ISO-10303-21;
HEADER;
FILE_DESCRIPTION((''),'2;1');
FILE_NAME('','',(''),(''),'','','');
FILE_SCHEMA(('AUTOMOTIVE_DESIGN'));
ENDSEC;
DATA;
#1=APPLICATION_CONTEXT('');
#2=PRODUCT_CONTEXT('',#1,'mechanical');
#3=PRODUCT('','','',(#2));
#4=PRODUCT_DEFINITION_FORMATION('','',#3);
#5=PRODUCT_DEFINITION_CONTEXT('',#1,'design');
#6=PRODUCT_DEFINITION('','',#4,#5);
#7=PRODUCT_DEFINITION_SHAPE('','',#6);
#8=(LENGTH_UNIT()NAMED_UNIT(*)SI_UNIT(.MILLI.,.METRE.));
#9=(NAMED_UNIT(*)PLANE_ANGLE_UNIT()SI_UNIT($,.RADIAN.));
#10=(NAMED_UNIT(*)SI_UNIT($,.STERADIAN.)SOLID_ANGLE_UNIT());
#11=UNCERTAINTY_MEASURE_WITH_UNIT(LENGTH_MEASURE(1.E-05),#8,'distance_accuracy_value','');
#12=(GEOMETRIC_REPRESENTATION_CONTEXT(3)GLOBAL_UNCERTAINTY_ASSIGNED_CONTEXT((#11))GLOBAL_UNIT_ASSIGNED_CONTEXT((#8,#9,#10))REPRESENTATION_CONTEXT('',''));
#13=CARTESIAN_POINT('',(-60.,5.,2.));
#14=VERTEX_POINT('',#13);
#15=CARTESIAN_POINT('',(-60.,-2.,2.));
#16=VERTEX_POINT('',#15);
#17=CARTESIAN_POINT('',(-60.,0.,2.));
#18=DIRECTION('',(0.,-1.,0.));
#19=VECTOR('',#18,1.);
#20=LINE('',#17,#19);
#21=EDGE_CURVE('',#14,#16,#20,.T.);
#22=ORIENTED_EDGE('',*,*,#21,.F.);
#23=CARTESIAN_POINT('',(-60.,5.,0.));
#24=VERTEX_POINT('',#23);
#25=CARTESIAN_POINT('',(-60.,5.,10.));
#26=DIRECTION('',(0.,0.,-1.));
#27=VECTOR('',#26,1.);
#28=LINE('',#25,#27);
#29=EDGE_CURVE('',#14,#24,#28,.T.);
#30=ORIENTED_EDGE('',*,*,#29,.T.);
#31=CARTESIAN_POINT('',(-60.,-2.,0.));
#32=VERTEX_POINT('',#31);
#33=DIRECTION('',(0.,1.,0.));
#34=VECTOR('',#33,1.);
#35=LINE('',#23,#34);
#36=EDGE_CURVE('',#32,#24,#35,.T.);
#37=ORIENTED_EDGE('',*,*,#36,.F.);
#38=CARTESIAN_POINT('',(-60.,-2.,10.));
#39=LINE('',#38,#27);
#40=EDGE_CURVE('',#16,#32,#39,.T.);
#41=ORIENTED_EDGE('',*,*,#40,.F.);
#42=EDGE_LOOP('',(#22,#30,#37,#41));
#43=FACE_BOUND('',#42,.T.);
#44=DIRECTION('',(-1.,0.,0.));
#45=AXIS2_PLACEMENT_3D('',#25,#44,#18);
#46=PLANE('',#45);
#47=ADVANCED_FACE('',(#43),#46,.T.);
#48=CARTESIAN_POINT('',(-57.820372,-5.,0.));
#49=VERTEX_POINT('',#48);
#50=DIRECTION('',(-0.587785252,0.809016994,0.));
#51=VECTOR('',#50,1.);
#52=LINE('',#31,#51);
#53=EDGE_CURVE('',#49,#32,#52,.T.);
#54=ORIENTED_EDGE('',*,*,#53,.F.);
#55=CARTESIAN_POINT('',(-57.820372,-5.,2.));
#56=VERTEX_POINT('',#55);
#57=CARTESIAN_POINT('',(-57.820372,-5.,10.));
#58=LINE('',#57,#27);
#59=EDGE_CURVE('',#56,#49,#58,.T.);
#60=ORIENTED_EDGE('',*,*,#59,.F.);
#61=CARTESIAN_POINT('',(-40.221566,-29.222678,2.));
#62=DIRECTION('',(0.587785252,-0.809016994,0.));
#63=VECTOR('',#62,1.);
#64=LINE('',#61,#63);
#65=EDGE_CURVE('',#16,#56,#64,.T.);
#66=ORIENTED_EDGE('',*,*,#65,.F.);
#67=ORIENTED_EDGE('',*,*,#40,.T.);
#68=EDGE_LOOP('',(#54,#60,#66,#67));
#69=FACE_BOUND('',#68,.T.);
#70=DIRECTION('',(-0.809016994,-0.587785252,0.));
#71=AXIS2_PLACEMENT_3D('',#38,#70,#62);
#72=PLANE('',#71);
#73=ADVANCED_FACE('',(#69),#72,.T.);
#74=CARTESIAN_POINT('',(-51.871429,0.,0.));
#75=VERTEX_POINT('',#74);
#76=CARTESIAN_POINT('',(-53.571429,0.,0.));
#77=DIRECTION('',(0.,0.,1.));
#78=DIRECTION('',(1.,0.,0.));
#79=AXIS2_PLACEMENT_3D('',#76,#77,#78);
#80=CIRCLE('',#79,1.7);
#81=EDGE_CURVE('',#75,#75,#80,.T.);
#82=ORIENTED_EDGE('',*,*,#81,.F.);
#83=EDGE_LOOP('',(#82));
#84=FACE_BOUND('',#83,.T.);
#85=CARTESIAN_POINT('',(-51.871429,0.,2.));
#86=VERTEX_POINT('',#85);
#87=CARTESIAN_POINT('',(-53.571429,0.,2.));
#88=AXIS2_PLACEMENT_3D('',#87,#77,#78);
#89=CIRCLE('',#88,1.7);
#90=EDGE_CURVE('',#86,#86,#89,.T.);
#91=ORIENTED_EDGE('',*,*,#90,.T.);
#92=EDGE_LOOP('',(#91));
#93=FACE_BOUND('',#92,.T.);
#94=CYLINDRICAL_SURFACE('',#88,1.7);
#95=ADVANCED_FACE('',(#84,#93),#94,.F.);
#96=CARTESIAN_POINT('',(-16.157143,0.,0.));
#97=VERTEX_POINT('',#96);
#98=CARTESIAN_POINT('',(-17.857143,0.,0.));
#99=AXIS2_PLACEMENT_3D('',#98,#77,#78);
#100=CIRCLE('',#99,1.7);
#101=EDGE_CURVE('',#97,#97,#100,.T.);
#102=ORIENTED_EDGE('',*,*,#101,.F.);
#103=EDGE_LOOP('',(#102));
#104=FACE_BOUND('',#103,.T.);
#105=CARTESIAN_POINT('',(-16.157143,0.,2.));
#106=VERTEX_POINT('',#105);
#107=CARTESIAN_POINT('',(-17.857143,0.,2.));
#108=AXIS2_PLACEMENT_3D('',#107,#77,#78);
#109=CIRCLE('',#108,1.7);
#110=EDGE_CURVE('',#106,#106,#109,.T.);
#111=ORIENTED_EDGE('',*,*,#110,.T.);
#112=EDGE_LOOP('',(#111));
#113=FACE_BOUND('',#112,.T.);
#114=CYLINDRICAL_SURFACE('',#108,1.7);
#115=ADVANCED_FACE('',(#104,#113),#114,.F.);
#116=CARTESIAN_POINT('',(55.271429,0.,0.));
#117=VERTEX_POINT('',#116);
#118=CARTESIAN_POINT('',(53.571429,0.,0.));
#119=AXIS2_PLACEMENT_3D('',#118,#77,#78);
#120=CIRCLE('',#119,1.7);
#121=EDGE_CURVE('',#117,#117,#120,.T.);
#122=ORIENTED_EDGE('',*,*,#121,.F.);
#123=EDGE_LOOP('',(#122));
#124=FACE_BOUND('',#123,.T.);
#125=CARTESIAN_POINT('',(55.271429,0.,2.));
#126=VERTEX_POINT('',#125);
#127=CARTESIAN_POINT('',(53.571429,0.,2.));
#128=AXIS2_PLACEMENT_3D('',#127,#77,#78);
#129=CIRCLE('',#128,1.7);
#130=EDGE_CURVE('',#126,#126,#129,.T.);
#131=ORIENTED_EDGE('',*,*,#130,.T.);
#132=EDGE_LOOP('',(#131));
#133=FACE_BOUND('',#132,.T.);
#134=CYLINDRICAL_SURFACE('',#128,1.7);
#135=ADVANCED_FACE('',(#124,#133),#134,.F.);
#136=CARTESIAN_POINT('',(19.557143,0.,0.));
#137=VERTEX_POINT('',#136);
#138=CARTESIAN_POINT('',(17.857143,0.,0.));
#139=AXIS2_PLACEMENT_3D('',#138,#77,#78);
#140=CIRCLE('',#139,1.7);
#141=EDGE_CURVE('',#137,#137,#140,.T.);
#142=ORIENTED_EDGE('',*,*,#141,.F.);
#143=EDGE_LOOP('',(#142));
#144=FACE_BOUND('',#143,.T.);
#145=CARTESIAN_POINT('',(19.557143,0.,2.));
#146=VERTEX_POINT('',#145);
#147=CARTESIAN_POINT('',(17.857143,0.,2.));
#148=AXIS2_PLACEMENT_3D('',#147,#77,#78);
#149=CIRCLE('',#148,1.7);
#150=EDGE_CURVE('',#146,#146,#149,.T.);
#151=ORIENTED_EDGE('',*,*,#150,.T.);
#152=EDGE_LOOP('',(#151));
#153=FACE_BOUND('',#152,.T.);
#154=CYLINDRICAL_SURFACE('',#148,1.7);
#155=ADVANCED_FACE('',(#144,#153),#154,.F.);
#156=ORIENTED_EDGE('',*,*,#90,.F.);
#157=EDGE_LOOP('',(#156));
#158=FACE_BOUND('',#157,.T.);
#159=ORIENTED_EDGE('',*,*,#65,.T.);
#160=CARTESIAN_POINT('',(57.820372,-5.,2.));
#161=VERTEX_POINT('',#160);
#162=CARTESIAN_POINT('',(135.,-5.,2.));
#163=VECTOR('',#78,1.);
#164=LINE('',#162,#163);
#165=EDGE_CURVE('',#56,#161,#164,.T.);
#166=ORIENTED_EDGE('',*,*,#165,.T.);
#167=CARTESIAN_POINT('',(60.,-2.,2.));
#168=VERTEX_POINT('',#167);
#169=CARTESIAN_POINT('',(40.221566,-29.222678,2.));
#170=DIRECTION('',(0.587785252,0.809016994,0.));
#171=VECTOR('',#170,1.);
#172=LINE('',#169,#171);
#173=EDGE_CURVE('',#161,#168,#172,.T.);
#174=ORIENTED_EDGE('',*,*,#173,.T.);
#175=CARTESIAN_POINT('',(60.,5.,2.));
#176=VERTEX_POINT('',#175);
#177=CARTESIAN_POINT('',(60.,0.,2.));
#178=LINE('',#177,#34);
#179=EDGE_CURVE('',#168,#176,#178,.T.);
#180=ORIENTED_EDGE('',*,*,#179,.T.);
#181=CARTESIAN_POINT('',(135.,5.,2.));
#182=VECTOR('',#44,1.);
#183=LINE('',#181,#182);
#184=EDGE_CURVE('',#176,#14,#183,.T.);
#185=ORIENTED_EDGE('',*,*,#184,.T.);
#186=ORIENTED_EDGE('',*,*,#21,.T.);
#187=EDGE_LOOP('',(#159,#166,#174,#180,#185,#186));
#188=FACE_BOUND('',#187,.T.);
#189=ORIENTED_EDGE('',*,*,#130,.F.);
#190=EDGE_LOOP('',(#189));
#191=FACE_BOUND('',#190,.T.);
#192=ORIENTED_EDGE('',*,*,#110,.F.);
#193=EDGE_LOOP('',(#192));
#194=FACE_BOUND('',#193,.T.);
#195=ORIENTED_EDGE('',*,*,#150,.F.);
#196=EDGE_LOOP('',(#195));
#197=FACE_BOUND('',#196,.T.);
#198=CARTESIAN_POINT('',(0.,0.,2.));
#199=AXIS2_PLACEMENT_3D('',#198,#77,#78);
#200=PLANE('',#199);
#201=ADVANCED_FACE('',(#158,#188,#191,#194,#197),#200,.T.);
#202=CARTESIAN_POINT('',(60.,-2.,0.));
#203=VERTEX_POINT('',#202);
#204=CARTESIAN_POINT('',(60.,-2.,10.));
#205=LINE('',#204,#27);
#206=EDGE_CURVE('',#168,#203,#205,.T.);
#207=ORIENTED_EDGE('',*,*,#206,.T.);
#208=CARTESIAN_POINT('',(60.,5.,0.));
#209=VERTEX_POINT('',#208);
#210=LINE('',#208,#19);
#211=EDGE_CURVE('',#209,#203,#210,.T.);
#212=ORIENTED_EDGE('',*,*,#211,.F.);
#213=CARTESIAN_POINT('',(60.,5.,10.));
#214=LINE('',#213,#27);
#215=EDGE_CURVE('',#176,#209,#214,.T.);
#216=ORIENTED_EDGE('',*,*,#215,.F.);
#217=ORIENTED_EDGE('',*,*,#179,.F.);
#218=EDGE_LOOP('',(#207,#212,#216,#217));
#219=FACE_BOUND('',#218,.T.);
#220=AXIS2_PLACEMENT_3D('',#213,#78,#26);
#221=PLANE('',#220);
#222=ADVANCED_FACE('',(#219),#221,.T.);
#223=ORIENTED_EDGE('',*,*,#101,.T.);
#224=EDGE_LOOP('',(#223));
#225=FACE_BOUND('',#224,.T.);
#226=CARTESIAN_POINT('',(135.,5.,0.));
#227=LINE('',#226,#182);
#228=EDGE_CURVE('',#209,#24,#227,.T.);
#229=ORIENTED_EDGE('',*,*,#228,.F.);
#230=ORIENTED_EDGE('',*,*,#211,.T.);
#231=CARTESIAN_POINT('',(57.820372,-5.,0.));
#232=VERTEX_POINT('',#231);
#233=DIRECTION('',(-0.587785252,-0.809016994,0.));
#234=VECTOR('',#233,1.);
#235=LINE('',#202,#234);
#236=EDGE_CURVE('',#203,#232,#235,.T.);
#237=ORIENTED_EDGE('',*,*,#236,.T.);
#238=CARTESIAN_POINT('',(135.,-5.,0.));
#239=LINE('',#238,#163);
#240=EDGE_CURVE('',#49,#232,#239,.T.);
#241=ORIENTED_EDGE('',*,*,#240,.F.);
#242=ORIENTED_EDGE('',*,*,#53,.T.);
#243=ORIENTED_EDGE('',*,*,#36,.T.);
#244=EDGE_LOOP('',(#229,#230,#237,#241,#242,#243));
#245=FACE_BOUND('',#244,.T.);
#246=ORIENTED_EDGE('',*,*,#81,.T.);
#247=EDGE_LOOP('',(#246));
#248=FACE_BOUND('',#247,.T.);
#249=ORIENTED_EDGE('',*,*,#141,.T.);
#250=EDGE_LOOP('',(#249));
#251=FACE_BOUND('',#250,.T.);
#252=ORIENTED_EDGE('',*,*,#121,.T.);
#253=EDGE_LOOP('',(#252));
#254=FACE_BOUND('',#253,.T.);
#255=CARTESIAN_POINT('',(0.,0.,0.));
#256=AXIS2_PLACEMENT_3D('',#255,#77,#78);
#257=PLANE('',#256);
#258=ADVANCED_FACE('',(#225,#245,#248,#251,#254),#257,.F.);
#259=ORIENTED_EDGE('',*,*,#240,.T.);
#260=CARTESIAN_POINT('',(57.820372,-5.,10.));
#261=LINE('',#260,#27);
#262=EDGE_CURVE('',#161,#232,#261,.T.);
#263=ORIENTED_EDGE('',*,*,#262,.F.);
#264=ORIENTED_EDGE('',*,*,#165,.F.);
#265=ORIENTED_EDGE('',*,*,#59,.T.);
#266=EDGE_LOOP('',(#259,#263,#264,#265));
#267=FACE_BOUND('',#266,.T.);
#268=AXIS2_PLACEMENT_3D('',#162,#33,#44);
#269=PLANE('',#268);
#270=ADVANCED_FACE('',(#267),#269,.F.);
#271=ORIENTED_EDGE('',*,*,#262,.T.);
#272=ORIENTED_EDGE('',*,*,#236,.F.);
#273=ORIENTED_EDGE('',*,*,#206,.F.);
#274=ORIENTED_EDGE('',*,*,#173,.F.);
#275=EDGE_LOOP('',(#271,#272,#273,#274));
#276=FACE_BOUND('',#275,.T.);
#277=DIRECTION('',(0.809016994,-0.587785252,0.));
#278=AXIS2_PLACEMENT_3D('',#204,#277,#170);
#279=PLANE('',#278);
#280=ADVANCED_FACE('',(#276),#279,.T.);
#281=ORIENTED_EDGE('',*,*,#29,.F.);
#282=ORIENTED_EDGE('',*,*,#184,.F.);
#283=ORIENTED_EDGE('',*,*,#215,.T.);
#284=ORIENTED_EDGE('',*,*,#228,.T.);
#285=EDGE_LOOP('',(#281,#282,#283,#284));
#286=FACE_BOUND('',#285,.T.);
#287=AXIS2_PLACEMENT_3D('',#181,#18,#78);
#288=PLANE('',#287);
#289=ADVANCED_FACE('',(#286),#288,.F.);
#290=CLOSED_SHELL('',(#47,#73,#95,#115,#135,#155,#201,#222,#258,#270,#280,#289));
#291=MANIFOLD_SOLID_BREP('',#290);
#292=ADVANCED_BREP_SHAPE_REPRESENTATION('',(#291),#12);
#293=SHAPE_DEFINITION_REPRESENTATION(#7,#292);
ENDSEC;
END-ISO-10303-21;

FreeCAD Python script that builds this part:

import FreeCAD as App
import Part
import Sketcher
Q = App.Units.Quantity


def edges_at(feature, points):
    """Names of the edges that pass closest to the given points."""
    edges = feature.Shape.Edges
    near = lambda p: min(range(len(edges)), key=lambda i: edges[i].distToShape(Part.Vertex(*p))[0])
    return sorted({f"Edge{near(p) + 1}" for p in points})


def add_polygon(sketch, points):
    """Adds a closed chain of lines whose ends are joined by coincident constraints."""
    first, n = sketch.GeometryCount, len(points)
    for a, b in zip(points, points[1:] + points[:1]):
        sketch.addGeometry(Part.LineSegment(App.Vector(*a, 0), App.Vector(*b, 0)), False)
    for i in range(n):
        sketch.addConstraint(Sketcher.Constraint("Coincident", first + i, 2, first + (i + 1) % n, 1))

doc = App.newDocument("Part")
body = doc.addObject("PartDesign::Body", "Body")

sketch1 = body.newObject("Sketcher::SketchObject", "Sketch")
sketch1.AttachmentSupport = (doc.getObject("XY_Plane"), [""])
sketch1.MapMode = "FlatFace"
add_polygon(sketch1, [(-135, 5), (-135, -5), (135, -5), (135, 5)])
sketch1.addConstraint(Sketcher.Constraint("Vertical", 0))
sketch1.addConstraint(Sketcher.Constraint("Horizontal", 1))
sketch1.addConstraint(Sketcher.Constraint("Vertical", 2))
sketch1.addConstraint(Sketcher.Constraint("Horizontal", 3))
sketch1.addConstraint(Sketcher.Constraint("Symmetric", 0, 2, 2, 2, -1, 1))
sketch1.addConstraint(Sketcher.Constraint("DistanceX", 1, 1, 1, 2, 270.0))
sketch1.addConstraint(Sketcher.Constraint("DistanceY", 0, 2, 0, 1, 10.0))
pad1 = body.newObject("PartDesign::Pad", "Pad")
pad1.Profile = sketch1
pad1.Length = 2
doc.recompute()

chamfer = body.newObject("PartDesign::Chamfer", "Chamfer")
chamfer.Base = (pad1, edges_at(pad1, [(135, -5, 1), (-135, -5, 1)]))
chamfer.Size = 2

sketch2 = body.newObject("Sketcher::SketchObject", "Sketch001")
sketch2.AttachmentSupport = (doc.getObject("XY_Plane"), [""])
sketch2.MapMode = "FlatFace"
sketch2.AttachmentOffset = App.Placement(App.Vector(0, 0, 2), App.Rotation())
sketch2.addGeometry(Part.Circle(App.Vector(125, 0, 0), App.Vector(0, 0, 1), 1.7), False)
sketch2.addConstraint(Sketcher.Constraint("PointOnObject", 0, 3, -1))
sketch2.addConstraint(Sketcher.Constraint("Diameter", 0, 3.4))
sketch2.addConstraint(Sketcher.Constraint("DistanceX", -1, 1, 0, 3, 125.0))
doc.recompute()
hole = body.newObject("PartDesign::Hole", "Hole")
hole.Profile = sketch2
hole.ThreadType = "None"
hole.Diameter = 3.4
hole.DepthType = "ThroughAll"
doc.recompute()

linearpattern = body.newObject("PartDesign::LinearPattern", "LinearPattern")
linearpattern.Originals = [hole]
linearpattern.Direction = (doc.getObject("X_Axis"), [""])
linearpattern.Mode = "offset"
linearpattern.Offset = 35.714286
linearpattern.Occurrences = 8
linearpattern.Reversed = True
body.Tip = linearpattern

sketch3 = body.newObject("Sketcher::SketchObject", "Sketch002")
sketch3.AttachmentSupport = (doc.getObject("XY_Plane"), [""])
sketch3.MapMode = "FlatFace"
add_polygon(sketch3, [(-160, 105), (160, 105), (160, -34.49197), (108.772917, -105), (-108.772917, -105), (-160, -34.49197)])
add_polygon(sketch3, [(60, 5), (-60, 5), (-60, -2), (-57.820372, -5), (57.820372, -5), (60, -2)])
sketch3.addConstraint(Sketcher.Constraint("Horizontal", 0))
sketch3.addConstraint(Sketcher.Constraint("Vertical", 1))
sketch3.addConstraint(Sketcher.Constraint("Horizontal", 3))
sketch3.addConstraint(Sketcher.Constraint("Vertical", 5))
sketch3.addConstraint(Sketcher.Constraint("Horizontal", 6))
sketch3.addConstraint(Sketcher.Constraint("Vertical", 7))
sketch3.addConstraint(Sketcher.Constraint("Horizontal", 9))
sketch3.addConstraint(Sketcher.Constraint("Vertical", 11))
sketch3.addConstraint(Sketcher.Constraint("Symmetric", 1, 2, 4, 2, -2))
sketch3.addConstraint(Sketcher.Constraint("Symmetric", 7, 2, 10, 2, -2))
sketch3.addConstraint(Sketcher.Constraint("Parallel", 4, 8))
sketch3.addConstraint(Sketcher.Constraint("Parallel", 2, 10))
sketch3.addConstraint(Sketcher.Constraint("Equal", 2, 4))
sketch3.addConstraint(Sketcher.Constraint("DistanceX", 0, 1, 0, 2, 320.0))
sketch3.addConstraint(Sketcher.Constraint("DistanceX", 6, 2, 6, 1, 120.0))
sketch3.addConstraint(Sketcher.Constraint("DistanceY", 7, 2, 7, 1, 7.0))
sketch3.addConstraint(Sketcher.Constraint("Angle", 2, Q("-126 deg")))
sketch3.addConstraint(Sketcher.Constraint("DistanceY", -1, 1, 0, 2, 105.0))
sketch3.addConstraint(Sketcher.Constraint("DistanceY", 2, 2, -1, 1, 105.0))
sketch3.addConstraint(Sketcher.Constraint("DistanceY", -1, 1, 6, 2, 5.0))
sketch3.addConstraint(Sketcher.Constraint("DistanceY", 8, 2, -1, 1, 5.0))
sketch3.addConstraint(Sketcher.Constraint("DistanceY", 1, 2, 1, 1, 139.49197))
pocket1 = body.newObject("PartDesign::Pocket", "Pocket")
pocket1.Profile = sketch3
pocket1.Length = 10
pocket1.Reversed = True

doc.recompute()
